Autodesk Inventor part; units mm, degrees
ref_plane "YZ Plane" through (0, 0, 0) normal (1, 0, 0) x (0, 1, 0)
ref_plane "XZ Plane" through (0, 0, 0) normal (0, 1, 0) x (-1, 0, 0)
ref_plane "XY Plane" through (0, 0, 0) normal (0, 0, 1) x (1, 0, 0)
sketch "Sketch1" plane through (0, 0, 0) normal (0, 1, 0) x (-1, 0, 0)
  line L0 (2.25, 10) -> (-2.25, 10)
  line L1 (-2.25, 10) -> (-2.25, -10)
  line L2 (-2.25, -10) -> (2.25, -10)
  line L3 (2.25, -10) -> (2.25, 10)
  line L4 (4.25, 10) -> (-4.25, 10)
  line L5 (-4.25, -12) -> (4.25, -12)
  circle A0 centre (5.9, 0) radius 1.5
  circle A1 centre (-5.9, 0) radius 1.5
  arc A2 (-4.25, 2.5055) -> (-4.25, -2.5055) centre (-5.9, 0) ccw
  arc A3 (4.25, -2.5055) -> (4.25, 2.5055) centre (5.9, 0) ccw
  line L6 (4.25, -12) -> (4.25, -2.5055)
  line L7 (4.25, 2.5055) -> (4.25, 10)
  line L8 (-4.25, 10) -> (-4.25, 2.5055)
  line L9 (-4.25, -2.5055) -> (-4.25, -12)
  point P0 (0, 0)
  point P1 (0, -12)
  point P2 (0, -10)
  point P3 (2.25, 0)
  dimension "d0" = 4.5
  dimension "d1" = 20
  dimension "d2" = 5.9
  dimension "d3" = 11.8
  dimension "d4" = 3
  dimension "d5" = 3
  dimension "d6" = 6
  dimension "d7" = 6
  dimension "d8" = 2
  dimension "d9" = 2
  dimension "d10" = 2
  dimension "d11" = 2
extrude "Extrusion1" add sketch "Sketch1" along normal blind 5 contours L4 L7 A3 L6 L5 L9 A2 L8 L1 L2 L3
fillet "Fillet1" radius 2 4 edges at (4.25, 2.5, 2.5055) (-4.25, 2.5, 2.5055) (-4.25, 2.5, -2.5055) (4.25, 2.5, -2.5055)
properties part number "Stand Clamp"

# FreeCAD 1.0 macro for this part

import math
import FreeCAD as App
import Part
import Sketcher
from FreeCAD import Vector


def edges_at(feature, points):
    """Names of the edges that pass closest to the given points."""
    edges = feature.Shape.Edges
    near = lambda p: min(range(len(edges)), key=lambda i: edges[i].distToShape(Part.Vertex(*p))[0])
    return sorted({f"Edge{near(p) + 1}" for p in points})

doc = App.newDocument("Part")
body = doc.addObject("PartDesign::Body", "Body")

# Sketch on XZ plane
sketch1 = body.newObject("Sketcher::SketchObject", "Sketch")
sketch1.AttachmentSupport = (doc.getObject("XZ_Plane"), [""])
sketch1.MapMode = "FlatFace"
sketch1.addGeometry([
    Part.LineSegment(Vector(-4.2, 10, 0), Vector(-2.2, 10, 0)),  # 0
    Part.LineSegment(Vector(-2.2, 10, 0), Vector(-2.2, -10, 0)),  # 1
    Part.LineSegment(Vector(-2.2, -10, 0), Vector(2.2, -10, 0)),  # 2
    Part.LineSegment(Vector(2.2, -10, 0), Vector(2.2, 10, 0)),  # 3
    Part.LineSegment(Vector(2.2, 10, 0), Vector(4.2, 10, 0)),  # 4
    Part.LineSegment(Vector(4.2, 10, 0), Vector(4.2, 2.5, 0)),  # 5
    Part.ArcOfCircle(Part.Circle(Vector(5.9, 0, 0), Vector(0, 0, 1), 3), math.radians(-123), math.radians(123)),  # 6
    Part.LineSegment(Vector(4.2, -2.5, 0), Vector(4.2, -12, 0)),  # 7
    Part.LineSegment(Vector(4.2, -12, 0), Vector(-4.2, -12, 0)),  # 8
    Part.LineSegment(Vector(-4.2, -12, 0), Vector(-4.2, -2.5, 0)),  # 9
    Part.ArcOfCircle(Part.Circle(Vector(-5.9, 0, 0), Vector(0, 0, 1), 3), math.radians(57), math.radians(303)),  # 10
    Part.LineSegment(Vector(-4.2, 2.5, 0), Vector(-4.2, 10, 0)),  # 11
    Part.Circle(Vector(5.9, 0, 0), Vector(0, 0, 1), 1.5),  # 12
    Part.Circle(Vector(-5.9, 0, 0), Vector(0, 0, 1), 1.5),  # 13
], False)
sketch1.addConstraint([
    Sketcher.Constraint("Coincident", 0, 2, 1, 1),
    Sketcher.Constraint("Coincident", 1, 2, 2, 1),
    Sketcher.Constraint("Coincident", 2, 2, 3, 1),
    Sketcher.Constraint("Coincident", 3, 2, 4, 1),
    Sketcher.Constraint("Coincident", 4, 2, 5, 1),
    Sketcher.Constraint("Coincident", 5, 2, 6, 2),
    Sketcher.Constraint("Coincident", 6, 1, 7, 1),
    Sketcher.Constraint("Coincident", 7, 2, 8, 1),
    Sketcher.Constraint("Coincident", 8, 2, 9, 1),
    Sketcher.Constraint("Coincident", 9, 2, 10, 2),
    Sketcher.Constraint("Coincident", 10, 1, 11, 1),
    Sketcher.Constraint("Coincident", 11, 2, 0, 1),
    Sketcher.Constraint("Horizontal", 0),
    Sketcher.Constraint("Vertical", 1),
    Sketcher.Constraint("Horizontal", 2),
    Sketcher.Constraint("Vertical", 3),
    Sketcher.Constraint("Horizontal", 4),
    Sketcher.Constraint("Vertical", 5),
    Sketcher.Constraint("Vertical", 7),
    Sketcher.Constraint("Horizontal", 8),
    Sketcher.Constraint("Vertical", 9),
    Sketcher.Constraint("Vertical", 11),
    Sketcher.Constraint("Coincident", 12, 3, 6, 3),
    Sketcher.Constraint("Coincident", 13, 3, 10, 3),
    Sketcher.Constraint("Equal", 6, 10),
    Sketcher.Constraint("Equal", 12, 13),
    Sketcher.Constraint("Symmetric", 6, 3, 10, 3, -1, 1),
    Sketcher.Constraint("Symmetric", 0, 2, 2, 2, -1, 1),
    Sketcher.Constraint("Symmetric", 6, 1, 9, 2, -2),
    Sketcher.Constraint("Symmetric", 4, 2, 11, 2, -2),
    Sketcher.Constraint("Vertical", 5, 2, 6, 1),
    Sketcher.Constraint("Diameter", 12, 3.0),
    Sketcher.Constraint("Radius", 6, 3.0),
    Sketcher.Constraint("DistanceX", 0, 1, 0, 2, 2.0),
    Sketcher.Constraint("DistanceY", 1, 2, 1, 1, 20.0),
    Sketcher.Constraint("DistanceX", 2, 1, 2, 2, 4.5),
    Sketcher.Constraint("DistanceY", 7, 2, 2, 2, 2.0),
    Sketcher.Constraint("DistanceX", -1, 1, 6, 3, 5.9),
])
pad1 = body.newObject("PartDesign::Pad", "Pad")
pad1.Profile = sketch1
pad1.Length = 5
pad1.Reversed = True
doc.recompute()

fillet = body.newObject("PartDesign::Fillet", "Fillet")
fillet.Base = (pad1, edges_at(pad1, [
    (4.25, 2.5, 2.506),
    (-4.25, 2.5, 2.506),
    (-4.25, 2.5, -2.506),
    (4.25, 2.5, -2.506),
]))
fillet.Radius = 2

doc.recompute()
